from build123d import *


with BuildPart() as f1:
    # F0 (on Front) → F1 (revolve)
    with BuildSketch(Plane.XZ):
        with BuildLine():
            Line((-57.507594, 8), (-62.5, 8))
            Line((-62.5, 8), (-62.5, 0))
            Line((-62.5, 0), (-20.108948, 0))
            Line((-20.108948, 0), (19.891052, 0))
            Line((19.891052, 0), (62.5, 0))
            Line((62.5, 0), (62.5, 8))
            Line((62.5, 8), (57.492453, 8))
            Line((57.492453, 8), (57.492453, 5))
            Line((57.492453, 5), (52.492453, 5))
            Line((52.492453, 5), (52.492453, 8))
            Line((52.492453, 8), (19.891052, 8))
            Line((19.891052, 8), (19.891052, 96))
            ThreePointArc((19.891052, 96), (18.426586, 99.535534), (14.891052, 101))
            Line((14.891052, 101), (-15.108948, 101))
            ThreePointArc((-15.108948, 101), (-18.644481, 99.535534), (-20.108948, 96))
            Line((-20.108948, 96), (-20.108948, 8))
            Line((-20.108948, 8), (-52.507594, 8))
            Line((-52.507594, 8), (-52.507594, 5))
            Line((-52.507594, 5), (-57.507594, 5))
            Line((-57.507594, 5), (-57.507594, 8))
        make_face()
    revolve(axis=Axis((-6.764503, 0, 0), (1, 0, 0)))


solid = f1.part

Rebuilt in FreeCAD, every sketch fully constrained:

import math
import FreeCAD as App
import Part
import Sketcher
from FreeCAD import Vector
Q = App.Units.Quantity

doc = App.newDocument("Part")
body = doc.addObject("PartDesign::Body", "Body")

# Sketch on XZ plane
sketch1 = body.newObject("Sketcher::SketchObject", "Sketch")
sketch1.AttachmentSupport = (doc.getObject("XZ_Plane"), [""])
sketch1.MapMode = "FlatFace"
sketch1.addGeometry([
    Part.LineSegment(Vector(-57.5, 8, 0), Vector(-62.5, 8, 0)),  # 0
    Part.LineSegment(Vector(-62.5, 8, 0), Vector(-62.5, 0, 0)),  # 1
    Part.LineSegment(Vector(-62.5, 0, 0), Vector(62.5, 0, 0)),  # 2
    Part.LineSegment(Vector(62.5, 0, 0), Vector(62.5, 8, 0)),  # 3
    Part.LineSegment(Vector(62.5, 8, 0), Vector(57.5, 8, 0)),  # 4
    Part.LineSegment(Vector(57.5, 8, 0), Vector(57.5, 5, 0)),  # 5
    Part.LineSegment(Vector(57.5, 5, 0), Vector(52.5, 5, 0)),  # 6
    Part.LineSegment(Vector(52.5, 5, 0), Vector(52.5, 8, 0)),  # 7
    Part.LineSegment(Vector(52.5, 8, 0), Vector(19.9, 8, 0)),  # 8
    Part.LineSegment(Vector(19.9, 8, 0), Vector(19.9, 96, 0)),  # 9
    Part.ArcOfCircle(Part.Circle(Vector(14.9, 96, 0), Vector(0, 0, 1), 5), math.radians(0), math.radians(90)),  # 10
    Part.LineSegment(Vector(14.9, 101, 0), Vector(-15.1, 101, 0)),  # 11
    Part.ArcOfCircle(Part.Circle(Vector(-15.1, 96, 0), Vector(0, 0, 1), 5), math.radians(90), math.radians(180)),  # 12
    Part.LineSegment(Vector(-20.1, 96, 0), Vector(-20.1, 8, 0)),  # 13
    Part.LineSegment(Vector(-20.1, 8, 0), Vector(-52.5, 8, 0)),  # 14
    Part.LineSegment(Vector(-52.5, 8, 0), Vector(-52.5, 5, 0)),  # 15
    Part.LineSegment(Vector(-52.5, 5, 0), Vector(-57.5, 5, 0)),  # 16
    Part.LineSegment(Vector(-57.5, 5, 0), Vector(-57.5, 8, 0)),  # 17
], False)
sketch1.addConstraint([
    Sketcher.Constraint("Coincident", 0, 2, 1, 1),
    Sketcher.Constraint("Coincident", 1, 2, 2, 1),
    Sketcher.Constraint("Coincident", 2, 2, 3, 1),
    Sketcher.Constraint("Coincident", 3, 2, 4, 1),
    Sketcher.Constraint("Coincident", 4, 2, 5, 1),
    Sketcher.Constraint("Coincident", 5, 2, 6, 1),
    Sketcher.Constraint("Coincident", 6, 2, 7, 1),
    Sketcher.Constraint("Coincident", 7, 2, 8, 1),
    Sketcher.Constraint("Coincident", 8, 2, 9, 1),
    Sketcher.Constraint("Tangent", 9, 2, 10, 1),
    Sketcher.Constraint("Tangent", 10, 2, 11, 1),
    Sketcher.Constraint("Tangent", 11, 2, 12, 1),
    Sketcher.Constraint("Tangent", 12, 2, 13, 1),
    Sketcher.Constraint("Coincident", 13, 2, 14, 1),
    Sketcher.Constraint("Coincident", 14, 2, 15, 1),
    Sketcher.Constraint("Coincident", 15, 2, 16, 1),
    Sketcher.Constraint("Coincident", 16, 2, 17, 1),
    Sketcher.Constraint("Coincident", 17, 2, 0, 1),
    Sketcher.Constraint("Horizontal", 0),
    Sketcher.Constraint("Vertical", 1),
    Sketcher.Constraint("Horizontal", 2),
    Sketcher.Constraint("Vertical", 3),
    Sketcher.Constraint("Horizontal", 4),
    Sketcher.Constraint("Vertical", 5),
    Sketcher.Constraint("Horizontal", 6),
    Sketcher.Constraint("Vertical", 7),
    Sketcher.Constraint("Horizontal", 8),
    Sketcher.Constraint("Vertical", 9),
    Sketcher.Constraint("Horizontal", 11),
    Sketcher.Constraint("Vertical", 13),
    Sketcher.Constraint("Horizontal", 14),
    Sketcher.Constraint("Vertical", 15),
    Sketcher.Constraint("Horizontal", 16),
    Sketcher.Constraint("Vertical", 17),
    Sketcher.Constraint("Equal", 10, 12),
    Sketcher.Constraint("Symmetric", 1, 2, 2, 2, -1, 1),
    Sketcher.Constraint("Horizontal", 0, 2, 3, 2),
    Sketcher.Constraint("Horizontal", 4, 2, 7, 2),
    Sketcher.Constraint("Horizontal", 8, 2, 13, 2),
    Sketcher.Constraint("Horizontal", 6, 2, 15, 2),
    Sketcher.Constraint("Equal", 6, 16),
    Sketcher.Constraint("Radius", 10, Q("5 mm")),
    Sketcher.Constraint("DistanceX", 2, 1, 2, 2, Q("125 mm")),
    Sketcher.Constraint("DistanceX", 6, 2, 6, 1, Q("5 mm")),
    Sketcher.Constraint("DistanceX", 11, 2, 11, 1, Q("30 mm")),
    Sketcher.Constraint("DistanceY", 1, 2, 1, 1, Q("8 mm")),
    Sketcher.Constraint("DistanceY", 5, 2, 5, 1, Q("3 mm")),
    Sketcher.Constraint("DistanceY", 9, 1, 9, 2, Q("88 mm")),
    Sketcher.Constraint("DistanceX", 8, 2, 8, 1, Q("32.601401 mm")),
    Sketcher.Constraint("DistanceX", 0, 2, 0, 1, Q("4.992406 mm")),
    Sketcher.Constraint("DistanceX", 4, 2, 4, 1, Q("5.007547 mm")),
])
revolution = body.newObject("PartDesign::Revolution", "Revolution")
revolution.Profile = sketch1
revolution.ReferenceAxis = (sketch1, ["H_Axis"])
revolution.Angle = 360

doc.recompute()
